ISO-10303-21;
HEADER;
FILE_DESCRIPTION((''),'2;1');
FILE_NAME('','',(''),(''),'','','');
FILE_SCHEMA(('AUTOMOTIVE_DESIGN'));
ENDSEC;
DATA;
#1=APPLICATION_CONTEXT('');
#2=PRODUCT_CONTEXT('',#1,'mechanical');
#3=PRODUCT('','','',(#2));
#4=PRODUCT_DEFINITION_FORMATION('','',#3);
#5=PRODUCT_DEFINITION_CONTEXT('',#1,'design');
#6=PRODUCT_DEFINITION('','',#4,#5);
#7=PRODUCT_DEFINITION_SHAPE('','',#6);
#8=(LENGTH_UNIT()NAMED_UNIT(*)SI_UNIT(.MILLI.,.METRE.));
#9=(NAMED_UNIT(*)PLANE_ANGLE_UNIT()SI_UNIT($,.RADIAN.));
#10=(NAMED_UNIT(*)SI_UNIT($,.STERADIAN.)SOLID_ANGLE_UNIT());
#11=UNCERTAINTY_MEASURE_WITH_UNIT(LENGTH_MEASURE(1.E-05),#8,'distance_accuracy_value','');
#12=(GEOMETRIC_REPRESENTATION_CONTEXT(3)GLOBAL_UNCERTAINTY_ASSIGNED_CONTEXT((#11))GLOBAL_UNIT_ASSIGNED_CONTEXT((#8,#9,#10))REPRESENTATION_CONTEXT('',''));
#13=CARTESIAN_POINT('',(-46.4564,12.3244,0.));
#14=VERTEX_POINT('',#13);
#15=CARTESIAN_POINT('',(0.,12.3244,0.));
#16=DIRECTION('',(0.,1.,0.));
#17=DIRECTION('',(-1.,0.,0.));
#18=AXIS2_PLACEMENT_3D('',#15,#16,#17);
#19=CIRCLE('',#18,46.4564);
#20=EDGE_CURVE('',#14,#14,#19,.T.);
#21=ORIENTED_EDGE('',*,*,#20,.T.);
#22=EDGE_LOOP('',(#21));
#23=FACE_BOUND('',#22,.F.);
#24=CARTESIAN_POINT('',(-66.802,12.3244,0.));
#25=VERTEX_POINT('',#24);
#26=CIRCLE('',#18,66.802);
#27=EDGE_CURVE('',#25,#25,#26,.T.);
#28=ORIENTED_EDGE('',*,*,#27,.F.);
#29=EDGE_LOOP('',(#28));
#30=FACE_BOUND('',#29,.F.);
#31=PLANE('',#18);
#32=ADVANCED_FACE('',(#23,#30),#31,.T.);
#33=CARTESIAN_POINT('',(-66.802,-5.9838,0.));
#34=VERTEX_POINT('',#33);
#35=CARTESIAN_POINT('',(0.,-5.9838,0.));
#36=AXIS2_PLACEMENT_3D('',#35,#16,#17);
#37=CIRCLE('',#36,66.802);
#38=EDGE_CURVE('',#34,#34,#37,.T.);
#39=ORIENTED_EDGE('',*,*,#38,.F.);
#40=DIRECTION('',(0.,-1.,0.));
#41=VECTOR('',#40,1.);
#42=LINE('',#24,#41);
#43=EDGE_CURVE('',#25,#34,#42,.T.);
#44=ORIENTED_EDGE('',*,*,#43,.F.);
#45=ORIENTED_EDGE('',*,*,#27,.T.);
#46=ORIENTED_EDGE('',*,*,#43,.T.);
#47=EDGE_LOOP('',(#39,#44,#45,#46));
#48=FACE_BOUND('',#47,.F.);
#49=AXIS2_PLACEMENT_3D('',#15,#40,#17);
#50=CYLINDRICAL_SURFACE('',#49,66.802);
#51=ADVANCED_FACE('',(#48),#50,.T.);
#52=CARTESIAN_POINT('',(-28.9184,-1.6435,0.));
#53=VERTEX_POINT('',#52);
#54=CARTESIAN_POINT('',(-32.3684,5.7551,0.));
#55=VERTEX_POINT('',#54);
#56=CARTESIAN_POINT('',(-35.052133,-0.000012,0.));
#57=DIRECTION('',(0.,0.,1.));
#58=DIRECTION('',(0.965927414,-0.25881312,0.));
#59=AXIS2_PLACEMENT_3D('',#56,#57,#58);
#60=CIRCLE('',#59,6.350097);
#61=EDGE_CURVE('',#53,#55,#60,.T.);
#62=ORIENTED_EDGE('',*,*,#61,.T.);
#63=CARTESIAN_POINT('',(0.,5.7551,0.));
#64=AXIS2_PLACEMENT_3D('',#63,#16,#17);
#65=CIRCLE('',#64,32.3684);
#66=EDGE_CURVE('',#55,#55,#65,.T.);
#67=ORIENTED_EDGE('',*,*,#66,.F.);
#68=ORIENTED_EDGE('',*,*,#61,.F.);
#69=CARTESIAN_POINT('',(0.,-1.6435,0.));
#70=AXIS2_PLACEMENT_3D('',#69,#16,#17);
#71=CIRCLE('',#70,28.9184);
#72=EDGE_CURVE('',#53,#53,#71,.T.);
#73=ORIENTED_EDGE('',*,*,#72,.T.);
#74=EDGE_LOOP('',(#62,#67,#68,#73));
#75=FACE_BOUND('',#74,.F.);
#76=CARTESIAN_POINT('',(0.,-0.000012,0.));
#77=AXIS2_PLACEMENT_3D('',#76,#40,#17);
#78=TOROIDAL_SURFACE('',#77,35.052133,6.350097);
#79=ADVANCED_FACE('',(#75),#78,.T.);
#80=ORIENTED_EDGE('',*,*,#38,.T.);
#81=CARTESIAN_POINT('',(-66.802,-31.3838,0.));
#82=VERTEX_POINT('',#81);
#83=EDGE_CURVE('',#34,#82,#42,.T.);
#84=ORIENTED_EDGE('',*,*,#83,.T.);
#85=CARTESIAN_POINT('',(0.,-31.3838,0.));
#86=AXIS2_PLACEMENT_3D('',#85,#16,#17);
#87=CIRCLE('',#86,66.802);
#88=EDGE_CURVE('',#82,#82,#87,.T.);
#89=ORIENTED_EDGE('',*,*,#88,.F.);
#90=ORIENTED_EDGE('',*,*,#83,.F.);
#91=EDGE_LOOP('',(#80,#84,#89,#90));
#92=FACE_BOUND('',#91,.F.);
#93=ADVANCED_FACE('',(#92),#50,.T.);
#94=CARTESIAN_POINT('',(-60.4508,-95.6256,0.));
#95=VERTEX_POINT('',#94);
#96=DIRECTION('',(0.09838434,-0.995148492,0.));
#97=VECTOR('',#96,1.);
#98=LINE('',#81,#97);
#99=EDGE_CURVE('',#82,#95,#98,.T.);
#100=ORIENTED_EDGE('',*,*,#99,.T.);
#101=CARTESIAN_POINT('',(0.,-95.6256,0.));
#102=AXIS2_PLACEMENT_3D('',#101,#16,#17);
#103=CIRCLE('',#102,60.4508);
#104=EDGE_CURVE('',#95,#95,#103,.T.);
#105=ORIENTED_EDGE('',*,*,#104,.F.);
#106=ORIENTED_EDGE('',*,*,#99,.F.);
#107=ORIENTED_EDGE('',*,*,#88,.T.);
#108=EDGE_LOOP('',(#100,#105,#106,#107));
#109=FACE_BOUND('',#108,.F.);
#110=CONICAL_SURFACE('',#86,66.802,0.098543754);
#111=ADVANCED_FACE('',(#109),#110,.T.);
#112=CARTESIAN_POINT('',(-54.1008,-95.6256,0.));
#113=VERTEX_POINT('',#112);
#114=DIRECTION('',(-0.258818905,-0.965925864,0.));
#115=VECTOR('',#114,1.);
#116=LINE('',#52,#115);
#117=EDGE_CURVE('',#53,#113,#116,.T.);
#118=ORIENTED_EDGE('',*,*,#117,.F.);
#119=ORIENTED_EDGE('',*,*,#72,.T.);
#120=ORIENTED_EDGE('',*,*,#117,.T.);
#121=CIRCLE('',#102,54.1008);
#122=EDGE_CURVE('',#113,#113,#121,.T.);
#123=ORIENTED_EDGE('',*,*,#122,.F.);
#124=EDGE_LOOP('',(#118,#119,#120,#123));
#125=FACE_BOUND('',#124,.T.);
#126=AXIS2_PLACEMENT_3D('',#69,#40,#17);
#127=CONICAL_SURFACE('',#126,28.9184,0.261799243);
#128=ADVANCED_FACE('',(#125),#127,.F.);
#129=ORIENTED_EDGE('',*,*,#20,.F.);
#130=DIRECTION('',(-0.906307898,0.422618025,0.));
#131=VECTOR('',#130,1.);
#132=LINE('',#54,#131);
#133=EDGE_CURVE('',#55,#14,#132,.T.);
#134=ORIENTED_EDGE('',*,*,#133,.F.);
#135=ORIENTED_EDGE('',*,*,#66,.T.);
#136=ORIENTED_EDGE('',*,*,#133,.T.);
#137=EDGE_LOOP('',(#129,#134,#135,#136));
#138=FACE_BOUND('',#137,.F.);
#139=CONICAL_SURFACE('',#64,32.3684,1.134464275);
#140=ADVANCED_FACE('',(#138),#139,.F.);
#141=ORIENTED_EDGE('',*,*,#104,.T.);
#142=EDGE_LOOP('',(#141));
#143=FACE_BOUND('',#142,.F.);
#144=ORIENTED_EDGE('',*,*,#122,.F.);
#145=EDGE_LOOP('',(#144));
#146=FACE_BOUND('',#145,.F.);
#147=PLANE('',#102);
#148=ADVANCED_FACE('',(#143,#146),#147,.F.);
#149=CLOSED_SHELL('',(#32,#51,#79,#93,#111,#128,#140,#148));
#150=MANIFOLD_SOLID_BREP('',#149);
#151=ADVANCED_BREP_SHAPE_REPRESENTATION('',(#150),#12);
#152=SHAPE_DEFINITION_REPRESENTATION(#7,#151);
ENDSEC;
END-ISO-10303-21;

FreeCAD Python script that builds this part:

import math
import FreeCAD as App
import Part
import Sketcher

V = App.Vector
Q = App.Units.Quantity

doc = App.newDocument("Part")
body = doc.addObject("PartDesign::Body", "Body")

sketch1 = body.newObject("Sketcher::SketchObject", "Sketch")
sketch1.AttachmentSupport = (doc.getObject("XY_Plane"), [""])
sketch1.MapMode = "FlatFace"
sketch1.addGeometry([
    Part.LineSegment(V(-54.100812, -95.625597, 0), V(-28.9184, -1.6435, 0)),
    Part.ArcOfCircle(Part.Circle(V(-35.052, 0, 0), V(0, 0, 1), 6.349972), math.radians(-15.00006), math.radians(65.000386)),
    Part.LineSegment(V(-32.3684, 5.7551, 0), V(-46.456386, 12.324431, 0)),
    Part.LineSegment(V(-46.4564, 12.3244, 0), V(-66.802, 12.3244, 0)),
    Part.LineSegment(V(-66.802, 12.3244, 0), V(-66.802, -31.3838, 0)),
    Part.LineSegment(V(-66.802, -31.3838, 0), V(-60.4508, -95.6256, 0)),
    Part.LineSegment(V(-60.4508, -95.6256, 0), V(-54.1008, -95.6256, 0)),
], False)
sketch1.addConstraint([
    Sketcher.Constraint("Tangent", 0, 2, 1, 1),
    Sketcher.Constraint("Tangent", 1, 2, 2, 1),
    Sketcher.Constraint("Coincident", 2, 2, 3, 1),
    Sketcher.Constraint("Coincident", 3, 2, 4, 1),
    Sketcher.Constraint("Coincident", 4, 2, 5, 1),
    Sketcher.Constraint("Coincident", 5, 2, 6, 1),
    Sketcher.Constraint("Coincident", 6, 2, 0, 1),
    Sketcher.Constraint("Horizontal", 3),
    Sketcher.Constraint("Vertical", 4),
    Sketcher.Constraint("Horizontal", 6),
    Sketcher.Constraint("PointOnObject", 1, 3, -1),
    Sketcher.Constraint("Radius", 1, Q("0.25 in")),
    Sketcher.Constraint("DistanceX", 6, 1, 6, 2, Q("0.25 in")),
    Sketcher.Constraint("DistanceX", 3, 2, 3, 1, Q("0.801 in")),
    Sketcher.Constraint("DistanceY", 5, 2, 3, 2, Q("4.25 in")),
    Sketcher.Constraint("Angle", 0, Q("75 deg")),
    Sketcher.Constraint("Angle", 2, Q("155 deg")),
    Sketcher.Constraint("DistanceX", 1, 3, -1, 1, Q("1.38 in")),
    Sketcher.Constraint("DistanceX", 3, 2, -1, 1, Q("2.63 in")),
    Sketcher.Constraint("DistanceY", 4, 2, 4, 1, Q("1.7208 in")),
])
revolution = body.newObject("PartDesign::Revolution", "Revolution")
revolution.Profile = sketch1
revolution.ReferenceAxis = (sketch1, ["V_Axis"])
revolution.Angle = 360

doc.recompute()
